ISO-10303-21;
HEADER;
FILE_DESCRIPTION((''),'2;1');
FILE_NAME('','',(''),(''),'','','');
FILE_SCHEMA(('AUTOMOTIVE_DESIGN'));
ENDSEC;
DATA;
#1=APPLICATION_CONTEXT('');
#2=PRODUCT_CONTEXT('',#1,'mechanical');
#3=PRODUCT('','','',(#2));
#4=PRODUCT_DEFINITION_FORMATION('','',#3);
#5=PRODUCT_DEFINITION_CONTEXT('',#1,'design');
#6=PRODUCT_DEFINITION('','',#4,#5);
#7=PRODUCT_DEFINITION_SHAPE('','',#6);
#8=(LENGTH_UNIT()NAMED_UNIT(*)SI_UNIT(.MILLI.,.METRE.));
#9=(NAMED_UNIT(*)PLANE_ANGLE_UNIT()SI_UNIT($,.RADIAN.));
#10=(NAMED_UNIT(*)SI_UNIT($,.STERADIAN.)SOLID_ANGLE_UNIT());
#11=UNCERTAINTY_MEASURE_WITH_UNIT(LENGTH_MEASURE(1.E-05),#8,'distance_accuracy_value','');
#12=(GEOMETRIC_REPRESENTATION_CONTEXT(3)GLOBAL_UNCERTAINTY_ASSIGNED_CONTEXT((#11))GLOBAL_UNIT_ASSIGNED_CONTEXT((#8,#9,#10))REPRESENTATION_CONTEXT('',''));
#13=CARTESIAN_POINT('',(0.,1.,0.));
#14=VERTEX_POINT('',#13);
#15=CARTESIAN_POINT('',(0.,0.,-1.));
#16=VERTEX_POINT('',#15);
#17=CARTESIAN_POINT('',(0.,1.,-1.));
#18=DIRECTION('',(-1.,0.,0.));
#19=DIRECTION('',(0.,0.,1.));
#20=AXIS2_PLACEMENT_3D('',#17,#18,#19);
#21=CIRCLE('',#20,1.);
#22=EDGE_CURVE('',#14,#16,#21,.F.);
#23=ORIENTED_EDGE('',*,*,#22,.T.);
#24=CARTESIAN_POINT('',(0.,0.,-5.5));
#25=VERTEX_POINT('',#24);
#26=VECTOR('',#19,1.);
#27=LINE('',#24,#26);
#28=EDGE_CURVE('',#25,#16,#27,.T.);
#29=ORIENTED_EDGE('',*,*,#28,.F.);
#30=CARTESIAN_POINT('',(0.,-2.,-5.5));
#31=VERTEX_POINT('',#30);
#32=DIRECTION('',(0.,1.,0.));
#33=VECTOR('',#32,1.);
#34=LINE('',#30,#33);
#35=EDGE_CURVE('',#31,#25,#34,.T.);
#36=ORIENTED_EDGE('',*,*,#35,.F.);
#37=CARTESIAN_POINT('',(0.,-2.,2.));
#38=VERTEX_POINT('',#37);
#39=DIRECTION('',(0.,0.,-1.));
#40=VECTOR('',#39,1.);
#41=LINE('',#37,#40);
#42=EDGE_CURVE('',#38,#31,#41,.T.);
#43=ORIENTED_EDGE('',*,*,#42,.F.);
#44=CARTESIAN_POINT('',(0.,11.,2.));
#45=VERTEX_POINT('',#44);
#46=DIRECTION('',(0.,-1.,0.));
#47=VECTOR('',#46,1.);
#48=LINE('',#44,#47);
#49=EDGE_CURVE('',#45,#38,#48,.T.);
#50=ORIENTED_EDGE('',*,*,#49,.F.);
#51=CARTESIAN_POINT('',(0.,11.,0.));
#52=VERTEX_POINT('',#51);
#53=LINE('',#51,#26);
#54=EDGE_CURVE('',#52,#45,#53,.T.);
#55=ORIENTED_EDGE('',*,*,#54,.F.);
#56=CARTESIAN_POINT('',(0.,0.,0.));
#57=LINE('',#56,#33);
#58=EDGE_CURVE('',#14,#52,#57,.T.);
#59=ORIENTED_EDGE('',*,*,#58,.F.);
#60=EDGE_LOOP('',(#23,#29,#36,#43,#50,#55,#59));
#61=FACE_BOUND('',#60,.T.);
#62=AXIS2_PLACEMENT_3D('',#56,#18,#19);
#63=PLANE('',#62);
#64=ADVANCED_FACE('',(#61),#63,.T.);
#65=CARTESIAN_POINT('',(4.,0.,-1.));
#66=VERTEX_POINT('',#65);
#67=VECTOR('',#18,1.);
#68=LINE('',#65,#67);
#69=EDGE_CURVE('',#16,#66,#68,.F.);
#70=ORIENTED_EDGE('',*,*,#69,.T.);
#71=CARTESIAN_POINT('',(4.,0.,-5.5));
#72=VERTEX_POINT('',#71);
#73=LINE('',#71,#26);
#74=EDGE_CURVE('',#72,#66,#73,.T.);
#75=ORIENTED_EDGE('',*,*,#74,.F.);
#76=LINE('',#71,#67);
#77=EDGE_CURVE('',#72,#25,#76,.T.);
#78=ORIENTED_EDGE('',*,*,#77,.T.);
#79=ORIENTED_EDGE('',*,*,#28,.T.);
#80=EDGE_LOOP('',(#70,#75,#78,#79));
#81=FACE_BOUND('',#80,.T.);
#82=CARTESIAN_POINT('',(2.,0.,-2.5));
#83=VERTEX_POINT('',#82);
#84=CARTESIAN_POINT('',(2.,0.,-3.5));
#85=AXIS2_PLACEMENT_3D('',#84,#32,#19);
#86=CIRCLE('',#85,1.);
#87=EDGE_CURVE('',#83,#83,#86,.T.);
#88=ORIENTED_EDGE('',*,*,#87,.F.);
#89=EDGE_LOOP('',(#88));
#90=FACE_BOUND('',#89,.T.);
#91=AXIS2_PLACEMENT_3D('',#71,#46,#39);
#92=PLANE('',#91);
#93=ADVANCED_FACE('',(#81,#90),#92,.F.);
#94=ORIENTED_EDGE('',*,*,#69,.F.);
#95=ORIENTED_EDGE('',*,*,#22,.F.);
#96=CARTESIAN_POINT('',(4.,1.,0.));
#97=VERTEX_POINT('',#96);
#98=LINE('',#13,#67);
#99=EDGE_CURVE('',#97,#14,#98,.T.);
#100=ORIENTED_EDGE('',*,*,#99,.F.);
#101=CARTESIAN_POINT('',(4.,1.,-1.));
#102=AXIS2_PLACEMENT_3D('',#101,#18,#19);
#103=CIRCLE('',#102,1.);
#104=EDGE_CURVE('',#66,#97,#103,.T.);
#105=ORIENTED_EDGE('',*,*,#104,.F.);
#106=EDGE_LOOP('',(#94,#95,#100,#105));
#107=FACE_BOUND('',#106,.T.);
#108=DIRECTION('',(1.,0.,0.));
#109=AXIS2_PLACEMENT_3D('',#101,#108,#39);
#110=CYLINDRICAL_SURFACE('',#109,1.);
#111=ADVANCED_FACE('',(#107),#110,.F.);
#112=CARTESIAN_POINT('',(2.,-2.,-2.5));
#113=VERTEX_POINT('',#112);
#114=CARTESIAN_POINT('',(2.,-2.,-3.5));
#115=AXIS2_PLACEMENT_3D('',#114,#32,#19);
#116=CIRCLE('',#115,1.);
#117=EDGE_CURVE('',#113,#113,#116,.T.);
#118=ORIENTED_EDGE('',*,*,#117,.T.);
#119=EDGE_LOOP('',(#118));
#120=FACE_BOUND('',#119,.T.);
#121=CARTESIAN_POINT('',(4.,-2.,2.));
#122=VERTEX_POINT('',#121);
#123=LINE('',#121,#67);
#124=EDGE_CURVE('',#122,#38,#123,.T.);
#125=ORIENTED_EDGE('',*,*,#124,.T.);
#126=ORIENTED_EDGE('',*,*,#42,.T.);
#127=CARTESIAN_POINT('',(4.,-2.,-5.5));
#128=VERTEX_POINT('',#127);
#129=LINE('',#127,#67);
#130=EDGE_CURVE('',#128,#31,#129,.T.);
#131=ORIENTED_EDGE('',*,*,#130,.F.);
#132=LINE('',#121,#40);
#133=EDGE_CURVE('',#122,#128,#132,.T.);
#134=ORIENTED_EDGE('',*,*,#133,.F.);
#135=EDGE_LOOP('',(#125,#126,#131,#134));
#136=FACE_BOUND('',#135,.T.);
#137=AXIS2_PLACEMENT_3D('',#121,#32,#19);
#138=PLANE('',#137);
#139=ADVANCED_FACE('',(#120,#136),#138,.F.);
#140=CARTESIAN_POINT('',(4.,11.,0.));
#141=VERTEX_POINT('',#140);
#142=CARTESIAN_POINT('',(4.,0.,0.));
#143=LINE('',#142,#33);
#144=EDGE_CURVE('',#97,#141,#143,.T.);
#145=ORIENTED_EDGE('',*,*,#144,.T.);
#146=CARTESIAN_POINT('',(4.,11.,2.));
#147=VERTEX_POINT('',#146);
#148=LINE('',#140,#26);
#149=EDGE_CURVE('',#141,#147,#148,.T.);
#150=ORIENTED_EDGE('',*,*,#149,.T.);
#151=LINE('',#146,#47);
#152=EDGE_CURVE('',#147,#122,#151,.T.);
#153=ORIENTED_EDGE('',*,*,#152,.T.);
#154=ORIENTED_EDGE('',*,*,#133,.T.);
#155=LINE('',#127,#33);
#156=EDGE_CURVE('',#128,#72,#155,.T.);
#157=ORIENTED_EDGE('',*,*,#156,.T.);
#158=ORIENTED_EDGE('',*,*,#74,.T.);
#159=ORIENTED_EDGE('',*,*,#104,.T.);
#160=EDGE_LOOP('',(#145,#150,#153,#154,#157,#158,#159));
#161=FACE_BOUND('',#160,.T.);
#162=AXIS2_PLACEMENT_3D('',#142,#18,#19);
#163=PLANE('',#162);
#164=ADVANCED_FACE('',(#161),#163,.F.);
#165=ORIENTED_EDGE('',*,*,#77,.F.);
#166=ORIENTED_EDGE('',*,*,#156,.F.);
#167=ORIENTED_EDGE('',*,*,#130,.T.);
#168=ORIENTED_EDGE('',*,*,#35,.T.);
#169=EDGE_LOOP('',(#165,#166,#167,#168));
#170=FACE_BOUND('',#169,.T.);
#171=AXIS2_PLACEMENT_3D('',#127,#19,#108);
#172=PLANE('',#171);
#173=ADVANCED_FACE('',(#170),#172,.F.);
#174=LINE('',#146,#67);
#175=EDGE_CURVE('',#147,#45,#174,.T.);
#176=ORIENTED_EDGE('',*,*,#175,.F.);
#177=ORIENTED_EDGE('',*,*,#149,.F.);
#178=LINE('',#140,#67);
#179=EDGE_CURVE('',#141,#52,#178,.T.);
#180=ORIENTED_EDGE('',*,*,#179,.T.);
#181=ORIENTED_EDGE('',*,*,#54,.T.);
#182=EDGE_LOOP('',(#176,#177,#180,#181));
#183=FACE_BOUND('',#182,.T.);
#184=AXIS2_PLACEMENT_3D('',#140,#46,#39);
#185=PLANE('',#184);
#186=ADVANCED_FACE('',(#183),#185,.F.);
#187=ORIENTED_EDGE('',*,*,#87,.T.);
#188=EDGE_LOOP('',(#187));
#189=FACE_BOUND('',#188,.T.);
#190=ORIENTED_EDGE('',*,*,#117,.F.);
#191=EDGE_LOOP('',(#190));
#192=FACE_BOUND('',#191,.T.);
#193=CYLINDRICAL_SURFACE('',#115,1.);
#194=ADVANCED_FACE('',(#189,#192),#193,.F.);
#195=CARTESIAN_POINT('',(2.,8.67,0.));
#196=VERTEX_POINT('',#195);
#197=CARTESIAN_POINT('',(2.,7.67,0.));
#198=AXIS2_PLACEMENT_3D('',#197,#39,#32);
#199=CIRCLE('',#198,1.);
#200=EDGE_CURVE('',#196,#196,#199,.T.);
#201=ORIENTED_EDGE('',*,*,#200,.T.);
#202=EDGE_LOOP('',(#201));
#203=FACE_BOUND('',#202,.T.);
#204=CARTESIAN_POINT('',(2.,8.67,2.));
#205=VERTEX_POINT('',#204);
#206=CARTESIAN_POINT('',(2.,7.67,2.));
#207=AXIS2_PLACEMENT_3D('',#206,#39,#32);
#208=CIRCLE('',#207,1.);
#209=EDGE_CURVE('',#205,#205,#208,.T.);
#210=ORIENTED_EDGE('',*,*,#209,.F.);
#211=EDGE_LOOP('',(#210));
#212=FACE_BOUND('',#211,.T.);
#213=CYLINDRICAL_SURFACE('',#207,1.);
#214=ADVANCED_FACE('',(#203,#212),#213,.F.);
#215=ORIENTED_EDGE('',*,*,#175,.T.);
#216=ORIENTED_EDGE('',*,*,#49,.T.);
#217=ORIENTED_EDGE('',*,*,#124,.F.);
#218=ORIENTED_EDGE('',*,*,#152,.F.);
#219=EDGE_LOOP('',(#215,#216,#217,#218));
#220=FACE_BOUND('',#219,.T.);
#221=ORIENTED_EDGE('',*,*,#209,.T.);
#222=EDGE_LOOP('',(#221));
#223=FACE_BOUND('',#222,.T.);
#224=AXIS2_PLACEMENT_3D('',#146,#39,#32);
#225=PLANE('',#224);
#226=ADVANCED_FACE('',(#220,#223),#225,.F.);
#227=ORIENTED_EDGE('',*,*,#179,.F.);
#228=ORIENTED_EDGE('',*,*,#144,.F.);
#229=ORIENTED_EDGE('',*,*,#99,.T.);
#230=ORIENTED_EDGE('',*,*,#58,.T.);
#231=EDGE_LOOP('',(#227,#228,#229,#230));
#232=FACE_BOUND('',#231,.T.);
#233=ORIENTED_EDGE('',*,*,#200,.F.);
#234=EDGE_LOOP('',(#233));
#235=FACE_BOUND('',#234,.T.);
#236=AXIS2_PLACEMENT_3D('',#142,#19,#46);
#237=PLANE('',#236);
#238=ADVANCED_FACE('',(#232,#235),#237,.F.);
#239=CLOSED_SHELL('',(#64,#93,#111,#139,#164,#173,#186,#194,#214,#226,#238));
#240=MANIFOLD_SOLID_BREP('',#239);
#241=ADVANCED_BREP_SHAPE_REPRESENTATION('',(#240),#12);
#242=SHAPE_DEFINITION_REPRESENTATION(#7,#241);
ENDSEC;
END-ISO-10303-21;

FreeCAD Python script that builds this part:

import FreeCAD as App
import Part
import Sketcher


def edges_at(feature, points):
    """Names of the edges that pass closest to the given points."""
    edges = feature.Shape.Edges
    near = lambda p: min(range(len(edges)), key=lambda i: edges[i].distToShape(Part.Vertex(*p))[0])
    return sorted({f"Edge{near(p) + 1}" for p in points})

doc = App.newDocument("Part")
body = doc.addObject("PartDesign::Body", "Body")

sketch1 = body.newObject("Sketcher::SketchObject", "Sketch")
sketch1.AttachmentSupport = (doc.getObject("YZ_Plane"), [""])
sketch1.MapMode = "FlatFace"
sketch1.addGeometry(Part.LineSegment(App.Vector(0, 0, 0), App.Vector(11, 0, 0)), False)
sketch1.addGeometry(Part.LineSegment(App.Vector(11, 0, 0), App.Vector(11, 2, 0)), False)
sketch1.addGeometry(Part.LineSegment(App.Vector(11, 2, 0), App.Vector(-2, 2, 0)), False)
sketch1.addGeometry(Part.LineSegment(App.Vector(-2, 2, 0), App.Vector(-2, -5.5, 0)), False)
sketch1.addGeometry(Part.LineSegment(App.Vector(-2, -5.5, 0), App.Vector(0, -5.5, 0)), False)
sketch1.addGeometry(Part.LineSegment(App.Vector(0, -5.5, 0), App.Vector(0, 0, 0)), False)
sketch1.addConstraint(Sketcher.Constraint("Coincident", 0, 2, 1, 1))
sketch1.addConstraint(Sketcher.Constraint("Coincident", 1, 2, 2, 1))
sketch1.addConstraint(Sketcher.Constraint("Coincident", 2, 2, 3, 1))
sketch1.addConstraint(Sketcher.Constraint("Coincident", 3, 2, 4, 1))
sketch1.addConstraint(Sketcher.Constraint("Coincident", 4, 2, 5, 1))
sketch1.addConstraint(Sketcher.Constraint("Coincident", 5, 2, 0, 1))
sketch1.addConstraint(Sketcher.Constraint("Horizontal", 0))
sketch1.addConstraint(Sketcher.Constraint("Vertical", 1))
sketch1.addConstraint(Sketcher.Constraint("Horizontal", 2))
sketch1.addConstraint(Sketcher.Constraint("Vertical", 3))
sketch1.addConstraint(Sketcher.Constraint("Horizontal", 4))
sketch1.addConstraint(Sketcher.Constraint("Vertical", 5))
sketch1.addConstraint(Sketcher.Constraint("Coincident", 5, 2, -1, 1))
sketch1.addConstraint(Sketcher.Constraint("Equal", 4, 1))
sketch1.addConstraint(Sketcher.Constraint("DistanceX", 0, 1, 0, 2, 11.0))
sketch1.addConstraint(Sketcher.Constraint("DistanceX", 2, 2, 2, 1, 13.0))
sketch1.addConstraint(Sketcher.Constraint("DistanceY", 3, 2, 3, 1, 7.5))
pad1 = body.newObject("PartDesign::Pad", "Pad")
pad1.Profile = sketch1
pad1.Length = 4

sketch2 = body.newObject("Sketcher::SketchObject", "Sketch001")
sketch2.AttachmentSupport = (doc.getObject("XY_Plane"), [""])
sketch2.MapMode = "FlatFace"
sketch2.addGeometry(Part.Circle(App.Vector(2, 7.7, 0), App.Vector(0, 0, 1), 1), False)
sketch2.addConstraint(Sketcher.Constraint("Diameter", 0, 2.0))
sketch2.addConstraint(Sketcher.Constraint("DistanceX", -1, 1, 0, 3, 2.0))
sketch2.addConstraint(Sketcher.Constraint("DistanceY", -1, 1, 0, 3, 7.67))
pocket1 = body.newObject("PartDesign::Pocket", "Pocket")
pocket1.Profile = sketch2
pocket1.Type = "ThroughAll"
pocket1.Reversed = True

sketch3 = body.newObject("Sketcher::SketchObject", "Sketch002")
sketch3.AttachmentSupport = (doc.getObject("XZ_Plane"), [""])
sketch3.MapMode = "FlatFace"
sketch3.addGeometry(Part.Circle(App.Vector(2, -3.5, 0), App.Vector(0, 0, 1), 1), False)
sketch3.addConstraint(Sketcher.Constraint("Diameter", 0, 2.0))
sketch3.addConstraint(Sketcher.Constraint("DistanceX", -1, 1, 0, 3, 2.0))
sketch3.addConstraint(Sketcher.Constraint("DistanceY", 0, 3, -1, 1, 3.5))
pocket2 = body.newObject("PartDesign::Pocket", "Pocket001")
pocket2.Profile = sketch3
pocket2.Type = "ThroughAll"
pocket2.Reversed = True
doc.recompute()

fillet = body.newObject("PartDesign::Fillet", "Fillet")
fillet.Base = (pocket2, edges_at(pocket2, [(2, 0, 0)]))
fillet.Radius = 1

doc.recompute()
